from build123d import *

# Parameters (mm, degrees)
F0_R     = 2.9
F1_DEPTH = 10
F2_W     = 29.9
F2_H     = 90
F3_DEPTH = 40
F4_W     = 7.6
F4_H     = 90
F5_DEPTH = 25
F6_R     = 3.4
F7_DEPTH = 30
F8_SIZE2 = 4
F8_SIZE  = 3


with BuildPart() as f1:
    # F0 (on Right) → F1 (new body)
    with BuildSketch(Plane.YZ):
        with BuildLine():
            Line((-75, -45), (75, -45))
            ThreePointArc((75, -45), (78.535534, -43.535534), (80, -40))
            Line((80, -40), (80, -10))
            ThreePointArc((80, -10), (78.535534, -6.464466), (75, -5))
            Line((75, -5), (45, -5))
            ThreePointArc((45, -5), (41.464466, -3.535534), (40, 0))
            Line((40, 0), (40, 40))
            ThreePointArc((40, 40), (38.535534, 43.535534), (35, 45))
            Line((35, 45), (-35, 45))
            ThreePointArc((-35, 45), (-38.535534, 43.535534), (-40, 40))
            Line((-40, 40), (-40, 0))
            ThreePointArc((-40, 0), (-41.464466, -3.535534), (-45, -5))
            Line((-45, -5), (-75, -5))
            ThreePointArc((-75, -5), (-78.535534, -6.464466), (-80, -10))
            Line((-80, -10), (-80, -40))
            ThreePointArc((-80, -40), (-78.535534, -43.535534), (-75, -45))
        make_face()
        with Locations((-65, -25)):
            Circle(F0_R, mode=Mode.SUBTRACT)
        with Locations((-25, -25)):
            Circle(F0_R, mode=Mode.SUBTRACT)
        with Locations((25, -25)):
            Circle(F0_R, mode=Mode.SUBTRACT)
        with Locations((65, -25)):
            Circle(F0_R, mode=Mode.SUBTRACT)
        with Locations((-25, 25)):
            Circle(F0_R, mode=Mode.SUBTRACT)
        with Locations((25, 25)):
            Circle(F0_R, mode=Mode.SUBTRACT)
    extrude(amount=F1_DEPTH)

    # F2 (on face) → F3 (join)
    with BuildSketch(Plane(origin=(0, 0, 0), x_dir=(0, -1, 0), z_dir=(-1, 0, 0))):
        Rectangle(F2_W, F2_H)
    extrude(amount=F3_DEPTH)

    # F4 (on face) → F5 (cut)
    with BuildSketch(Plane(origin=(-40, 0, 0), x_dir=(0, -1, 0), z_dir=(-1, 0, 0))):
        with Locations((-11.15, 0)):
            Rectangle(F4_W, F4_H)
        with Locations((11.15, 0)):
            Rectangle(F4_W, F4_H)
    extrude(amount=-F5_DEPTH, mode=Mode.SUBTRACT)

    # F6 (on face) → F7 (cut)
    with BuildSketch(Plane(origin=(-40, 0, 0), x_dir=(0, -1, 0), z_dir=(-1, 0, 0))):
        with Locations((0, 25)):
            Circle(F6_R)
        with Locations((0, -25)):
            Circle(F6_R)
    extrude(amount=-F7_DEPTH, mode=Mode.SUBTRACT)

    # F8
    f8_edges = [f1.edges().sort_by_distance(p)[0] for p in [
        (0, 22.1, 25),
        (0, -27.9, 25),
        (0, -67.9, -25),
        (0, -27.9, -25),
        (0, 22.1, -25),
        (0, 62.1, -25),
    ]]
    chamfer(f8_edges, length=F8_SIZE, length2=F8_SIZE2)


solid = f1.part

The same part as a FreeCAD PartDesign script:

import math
import FreeCAD as App
import Part
import Sketcher


def edges_at(feature, points):
    """Names of the edges that pass closest to the given points."""
    edges = feature.Shape.Edges
    near = lambda p: min(range(len(edges)), key=lambda i: edges[i].distToShape(Part.Vertex(*p))[0])
    return sorted({f"Edge{near(p) + 1}" for p in points})


def add_polygon(sketch, points):
    """Adds a closed chain of lines whose ends are joined by coincident constraints."""
    first, n = sketch.GeometryCount, len(points)
    for a, b in zip(points, points[1:] + points[:1]):
        sketch.addGeometry(Part.LineSegment(App.Vector(*a, 0), App.Vector(*b, 0)), False)
    for i in range(n):
        sketch.addConstraint(Sketcher.Constraint("Coincident", first + i, 2, first + (i + 1) % n, 1))

doc = App.newDocument("Part")
params = doc.addObject("Spreadsheet::Sheet", "Params")
for row, (alias, value) in enumerate([
    ("sketch1_radius", "5 mm"),
    ("sketch1_diameter", "5.8 mm"),
    ("sketch1_width", "150 mm"),
    ("sketch1_width2", "30 mm"),
    ("sketch1_height", "40 mm"),
    ("pad1_length", "10 mm"),
    ("sketch2_height", "90 mm"),
    ("sketch2_width", "29.9 mm"),
    ("pad2_length", "40 mm"),
    ("sketch3_height", "90 mm"),
    ("sketch3_width", "7.6 mm"),
    ("pocket1_length", "25 mm"),
    ("sketch4_diameter", "6.8 mm"),
    ("pocket2_length", "30 mm"),
    ("chamfer_size", "3 mm"),
    ("chamfer_size2", "4 mm"),
], start=1):
    params.set(f"A{row}", alias)
    params.set(f"B{row}", "=" + value)
    params.setAlias(f"B{row}", alias)

body = doc.addObject("PartDesign::Body", "Body")

# Sketch on YZ plane
sketch1 = body.newObject("Sketcher::SketchObject", "Sketch")
sketch1.AttachmentSupport = (doc.getObject("YZ_Plane"), [""])
sketch1.MapMode = "FlatFace"
sketch1.addGeometry(Part.LineSegment(App.Vector(-75, -45, 0), App.Vector(75, -45, 0)), False)
sketch1.addGeometry(Part.ArcOfCircle(Part.Circle(App.Vector(75, -40, 0), App.Vector(0, 0, 1), 5), math.radians(-90.000004), math.radians(0.000004)), False)
sketch1.addGeometry(Part.LineSegment(App.Vector(80, -40, 0), App.Vector(80, -10, 0)), False)
sketch1.addGeometry(Part.ArcOfCircle(Part.Circle(App.Vector(75, -10, 0), App.Vector(0, 0, 1), 5), math.radians(-0.000004), math.radians(90.000004)), False)
sketch1.addGeometry(Part.LineSegment(App.Vector(75, -5, 0), App.Vector(45, -5, 0)), False)
sketch1.addGeometry(Part.ArcOfCircle(Part.Circle(App.Vector(45, 0, 0), App.Vector(0, 0, 1), 5), math.radians(179.999996), math.radians(270.000004)), False)
sketch1.addGeometry(Part.LineSegment(App.Vector(40, 0, 0), App.Vector(40, 40, 0)), False)
sketch1.addGeometry(Part.ArcOfCircle(Part.Circle(App.Vector(35, 40, 0), App.Vector(0, 0, 1), 5), math.radians(-0.000004), math.radians(90.000004)), False)
sketch1.addGeometry(Part.LineSegment(App.Vector(35, 45, 0), App.Vector(-35, 45, 0)), False)
sketch1.addGeometry(Part.ArcOfCircle(Part.Circle(App.Vector(-35, 40, 0), App.Vector(0, 0, 1), 5), math.radians(89.999996), math.radians(180.000004)), False)
sketch1.addGeometry(Part.LineSegment(App.Vector(-40, 40, 0), App.Vector(-40, 0, 0)), False)
sketch1.addGeometry(Part.ArcOfCircle(Part.Circle(App.Vector(-45, 0, 0), App.Vector(0, 0, 1), 5), math.radians(-90.000004), math.radians(0.000004)), False)
sketch1.addGeometry(Part.LineSegment(App.Vector(-45, -5, 0), App.Vector(-75, -5, 0)), False)
sketch1.addGeometry(Part.ArcOfCircle(Part.Circle(App.Vector(-75, -10, 0), App.Vector(0, 0, 1), 5), math.radians(89.999996), math.radians(180.000004)), False)
sketch1.addGeometry(Part.LineSegment(App.Vector(-80, -10, 0), App.Vector(-80, -40, 0)), False)
sketch1.addGeometry(Part.ArcOfCircle(Part.Circle(App.Vector(-75, -40, 0), App.Vector(0, 0, 1), 5), math.radians(179.999996), math.radians(270.000004)), False)
sketch1.addGeometry(Part.Circle(App.Vector(-65, -25, 0), App.Vector(0, 0, 1), 2.9), False)
sketch1.addGeometry(Part.Circle(App.Vector(-25, -25, 0), App.Vector(0, 0, 1), 2.9), False)
sketch1.addGeometry(Part.Circle(App.Vector(25, -25, 0), App.Vector(0, 0, 1), 2.9), False)
sketch1.addGeometry(Part.Circle(App.Vector(65, -25, 0), App.Vector(0, 0, 1), 2.9), False)
sketch1.addGeometry(Part.Circle(App.Vector(-25, 25, 0), App.Vector(0, 0, 1), 2.9), False)
sketch1.addGeometry(Part.Circle(App.Vector(25, 25, 0), App.Vector(0, 0, 1), 2.9), False)
sketch1.addConstraint(Sketcher.Constraint("Tangent", 0, 2, 1, 1))
sketch1.addConstraint(Sketcher.Constraint("Tangent", 1, 2, 2, 1))
sketch1.addConstraint(Sketcher.Constraint("Tangent", 2, 2, 3, 1))
sketch1.addConstraint(Sketcher.Constraint("Tangent", 3, 2, 4, 1))
sketch1.addConstraint(Sketcher.Constraint("Tangent", 4, 2, 5, 2))
sketch1.addConstraint(Sketcher.Constraint("Tangent", 5, 1, 6, 1))
sketch1.addConstraint(Sketcher.Constraint("Tangent", 6, 2, 7, 1))
sketch1.addConstraint(Sketcher.Constraint("Tangent", 7, 2, 8, 1))
sketch1.addConstraint(Sketcher.Constraint("Tangent", 8, 2, 9, 1))
sketch1.addConstraint(Sketcher.Constraint("Tangent", 9, 2, 10, 1))
sketch1.addConstraint(Sketcher.Constraint("Tangent", 10, 2, 11, 2))
sketch1.addConstraint(Sketcher.Constraint("Tangent", 11, 1, 12, 1))
sketch1.addConstraint(Sketcher.Constraint("Tangent", 12, 2, 13, 1))
sketch1.addConstraint(Sketcher.Constraint("Tangent", 13, 2, 14, 1))
sketch1.addConstraint(Sketcher.Constraint("Tangent", 14, 2, 15, 1))
sketch1.addConstraint(Sketcher.Constraint("Tangent", 15, 2, 0, 1))
sketch1.addConstraint(Sketcher.Constraint("Horizontal", 0))
sketch1.addConstraint(Sketcher.Constraint("Vertical", 2))
sketch1.addConstraint(Sketcher.Constraint("Horizontal", 4))
sketch1.addConstraint(Sketcher.Constraint("Vertical", 6))
sketch1.addConstraint(Sketcher.Constraint("Horizontal", 8))
sketch1.addConstraint(Sketcher.Constraint("Vertical", 10))
sketch1.addConstraint(Sketcher.Constraint("Horizontal", 12))
sketch1.addConstraint(Sketcher.Constraint("Vertical", 14))
sketch1.addConstraint(Sketcher.Constraint("Equal", 1, 3))
sketch1.addConstraint(Sketcher.Constraint("Equal", 3, 5))
sketch1.addConstraint(Sketcher.Constraint("Equal", 5, 7))
sketch1.addConstraint(Sketcher.Constraint("Equal", 7, 9))
sketch1.addConstraint(Sketcher.Constraint("Equal", 9, 11))
sketch1.addConstraint(Sketcher.Constraint("Equal", 11, 13))
sketch1.addConstraint(Sketcher.Constraint("Equal", 13, 15))
sketch1.addConstraint(Sketcher.Constraint("Equal", 16, 17))
sketch1.addConstraint(Sketcher.Constraint("Equal", 17, 18))
sketch1.addConstraint(Sketcher.Constraint("Equal", 18, 19))
sketch1.addConstraint(Sketcher.Constraint("Equal", 19, 20))
sketch1.addConstraint(Sketcher.Constraint("Equal", 20, 21))
sketch1.addConstraint(Sketcher.Constraint("Symmetric", 5, 3, 11, 3, -1, 1))
sketch1.addConstraint(Sketcher.Constraint("Symmetric", 18, 3, 20, 3, -1, 1))
sketch1.addConstraint(Sketcher.Constraint("Symmetric", 17, 3, 21, 3, -1, 1))
sketch1.addConstraint(Sketcher.Constraint("Symmetric", 3, 3, 13, 3, -2))
sketch1.addConstraint(Sketcher.Constraint("Symmetric", 17, 3, 18, 3, -2))
sketch1.addConstraint(Sketcher.Constraint("Symmetric", 16, 3, 19, 3, -2))
sketch1.addConstraint(Sketcher.Constraint("Horizontal", 16, 3, 17, 3))
sketch1.addConstraint(Sketcher.Constraint("Equal", 12, 2))
sketch1.addConstraint(Sketcher.Constraint("Radius", 1, 5.0))
sketch1.addConstraint(Sketcher.Constraint("Diameter", 16, 5.8))
sketch1.addConstraint(Sketcher.Constraint("DistanceX", 0, 1, 0, 2, 150.0))
sketch1.addConstraint(Sketcher.Constraint("DistanceX", 4, 2, 4, 1, 30.0))
sketch1.addConstraint(Sketcher.Constraint("DistanceY", 6, 1, 6, 2, 40.0))
sketch1.addConstraint(Sketcher.Constraint("DistanceX", 16, 3, -1, 1, 65.0))
sketch1.addConstraint(Sketcher.Constraint("DistanceY", 16, 3, -1, 1, 25.0))
sketch1.addConstraint(Sketcher.Constraint("DistanceX", 17, 3, -1, 1, 25.0))
sketch1.setExpression("Constraints[44]", "Params.sketch1_radius")
sketch1.setExpression("Constraints[45]", "Params.sketch1_diameter")
sketch1.setExpression("Constraints[46]", "Params.sketch1_width")
sketch1.setExpression("Constraints[47]", "Params.sketch1_width2")
sketch1.setExpression("Constraints[48]", "Params.sketch1_height")
pad1 = body.newObject("PartDesign::Pad", "Pad")
pad1.Profile = sketch1
pad1.setExpression("Length", "Params.pad1_length")

# Sketch on YZ plane
sketch2 = body.newObject("Sketcher::SketchObject", "Sketch001")
sketch2.AttachmentSupport = (doc.getObject("YZ_Plane"), [""])
sketch2.MapMode = "FlatFace"
add_polygon(sketch2, [(14.95, 45), (14.95, -45), (-14.95, -45), (-14.95, 45)])  # lines 0-3
sketch2.addConstraint(Sketcher.Constraint("Vertical", 0))
sketch2.addConstraint(Sketcher.Constraint("Horizontal", 1))
sketch2.addConstraint(Sketcher.Constraint("Vertical", 2))
sketch2.addConstraint(Sketcher.Constraint("Horizontal", 3))
sketch2.addConstraint(Sketcher.Constraint("Symmetric", 0, 2, 2, 2, -1, 1))
sketch2.addConstraint(Sketcher.Constraint("DistanceY", 0, 2, 0, 1, 90.0))
sketch2.addConstraint(Sketcher.Constraint("DistanceX", 1, 2, 1, 1, 29.9))
sketch2.setExpression("Constraints[9]", "Params.sketch2_height")
sketch2.setExpression("Constraints[10]", "Params.sketch2_width")
pad2 = body.newObject("PartDesign::Pad", "Pad001")
pad2.Profile = sketch2
pad2.setExpression("Length", "Params.pad2_length")
pad2.Reversed = True

# Sketch on YZ plane
sketch3 = body.newObject("Sketcher::SketchObject", "Sketch002")
sketch3.AttachmentSupport = (doc.getObject("YZ_Plane"), [""])
sketch3.MapMode = "FlatFace"
sketch3.AttachmentOffset = App.Placement(App.Vector(0, 0, -40), App.Rotation())
add_polygon(sketch3, [(14.95, 45), (14.95, -45), (7.35, -45), (7.35, 45)])  # lines 0-3
add_polygon(sketch3, [(-7.35, 45), (-7.35, -45), (-14.95, -45), (-14.95, 45)])  # lines 4-7
sketch3.addConstraint(Sketcher.Constraint("Vertical", 0))
sketch3.addConstraint(Sketcher.Constraint("Horizontal", 1))
sketch3.addConstraint(Sketcher.Constraint("Vertical", 2))
sketch3.addConstraint(Sketcher.Constraint("Horizontal", 3))
sketch3.addConstraint(Sketcher.Constraint("Vertical", 4))
sketch3.addConstraint(Sketcher.Constraint("Horizontal", 5))
sketch3.addConstraint(Sketcher.Constraint("Vertical", 6))
sketch3.addConstraint(Sketcher.Constraint("Horizontal", 7))
sketch3.addConstraint(Sketcher.Constraint("Symmetric", 2, 2, 4, 2, -1, 1))
sketch3.addConstraint(Sketcher.Constraint("Symmetric", 0, 2, 6, 2, -1, 1))
sketch3.addConstraint(Sketcher.Constraint("Horizontal", 1, 2, 4, 2))
sketch3.addConstraint(Sketcher.Constraint("DistanceY", 0, 2, 0, 1, 90.0))
sketch3.addConstraint(Sketcher.Constraint("DistanceX", 1, 2, 1, 1, 7.6))
sketch3.addConstraint(Sketcher.Constraint("DistanceX", 4, 2, 1, 2, 14.7))
sketch3.setExpression("Constraints[19]", "Params.sketch3_height")
sketch3.setExpression("Constraints[20]", "Params.sketch3_width")
pocket1 = body.newObject("PartDesign::Pocket", "Pocket")
pocket1.Profile = sketch3
pocket1.setExpression("Length", "Params.pocket1_length")
pocket1.Reversed = True

# Sketch on YZ plane
sketch4 = body.newObject("Sketcher::SketchObject", "Sketch003")
sketch4.AttachmentSupport = (doc.getObject("YZ_Plane"), [""])
sketch4.MapMode = "FlatFace"
sketch4.AttachmentOffset = App.Placement(App.Vector(0, 0, -40), App.Rotation())
sketch4.addGeometry(Part.Circle(App.Vector(0, 25, 0), App.Vector(0, 0, 1), 3.4), False)
sketch4.addGeometry(Part.Circle(App.Vector(0, -25, 0), App.Vector(0, 0, 1), 3.4), False)
sketch4.addConstraint(Sketcher.Constraint("Equal", 0, 1))
sketch4.addConstraint(Sketcher.Constraint("Symmetric", 0, 3, 1, 3, -1, 1))
sketch4.addConstraint(Sketcher.Constraint("PointOnObject", 0, 3, -2))
sketch4.addConstraint(Sketcher.Constraint("Diameter", 0, 6.8))
sketch4.addConstraint(Sketcher.Constraint("DistanceY", -1, 1, 0, 3, 25.0))
sketch4.setExpression("Constraints[3]", "Params.sketch4_diameter")
pocket2 = body.newObject("PartDesign::Pocket", "Pocket001")
pocket2.Profile = sketch4
pocket2.setExpression("Length", "Params.pocket2_length")
pocket2.Reversed = True
doc.recompute()

chamfer = body.newObject("PartDesign::Chamfer", "Chamfer")
chamfer.Base = (pocket2, edges_at(pocket2, [
    (0, 22.1, 25),
    (0, -27.9, 25),
    (0, -67.9, -25),
    (0, -27.9, -25),
    (0, 22.1, -25),
    (0, 62.1, -25),
]))
chamfer.ChamferType = "Two distances"
chamfer.setExpression("Size", "Params.chamfer_size")
chamfer.setExpression("Size2", "Params.chamfer_size2")

doc.recompute()
